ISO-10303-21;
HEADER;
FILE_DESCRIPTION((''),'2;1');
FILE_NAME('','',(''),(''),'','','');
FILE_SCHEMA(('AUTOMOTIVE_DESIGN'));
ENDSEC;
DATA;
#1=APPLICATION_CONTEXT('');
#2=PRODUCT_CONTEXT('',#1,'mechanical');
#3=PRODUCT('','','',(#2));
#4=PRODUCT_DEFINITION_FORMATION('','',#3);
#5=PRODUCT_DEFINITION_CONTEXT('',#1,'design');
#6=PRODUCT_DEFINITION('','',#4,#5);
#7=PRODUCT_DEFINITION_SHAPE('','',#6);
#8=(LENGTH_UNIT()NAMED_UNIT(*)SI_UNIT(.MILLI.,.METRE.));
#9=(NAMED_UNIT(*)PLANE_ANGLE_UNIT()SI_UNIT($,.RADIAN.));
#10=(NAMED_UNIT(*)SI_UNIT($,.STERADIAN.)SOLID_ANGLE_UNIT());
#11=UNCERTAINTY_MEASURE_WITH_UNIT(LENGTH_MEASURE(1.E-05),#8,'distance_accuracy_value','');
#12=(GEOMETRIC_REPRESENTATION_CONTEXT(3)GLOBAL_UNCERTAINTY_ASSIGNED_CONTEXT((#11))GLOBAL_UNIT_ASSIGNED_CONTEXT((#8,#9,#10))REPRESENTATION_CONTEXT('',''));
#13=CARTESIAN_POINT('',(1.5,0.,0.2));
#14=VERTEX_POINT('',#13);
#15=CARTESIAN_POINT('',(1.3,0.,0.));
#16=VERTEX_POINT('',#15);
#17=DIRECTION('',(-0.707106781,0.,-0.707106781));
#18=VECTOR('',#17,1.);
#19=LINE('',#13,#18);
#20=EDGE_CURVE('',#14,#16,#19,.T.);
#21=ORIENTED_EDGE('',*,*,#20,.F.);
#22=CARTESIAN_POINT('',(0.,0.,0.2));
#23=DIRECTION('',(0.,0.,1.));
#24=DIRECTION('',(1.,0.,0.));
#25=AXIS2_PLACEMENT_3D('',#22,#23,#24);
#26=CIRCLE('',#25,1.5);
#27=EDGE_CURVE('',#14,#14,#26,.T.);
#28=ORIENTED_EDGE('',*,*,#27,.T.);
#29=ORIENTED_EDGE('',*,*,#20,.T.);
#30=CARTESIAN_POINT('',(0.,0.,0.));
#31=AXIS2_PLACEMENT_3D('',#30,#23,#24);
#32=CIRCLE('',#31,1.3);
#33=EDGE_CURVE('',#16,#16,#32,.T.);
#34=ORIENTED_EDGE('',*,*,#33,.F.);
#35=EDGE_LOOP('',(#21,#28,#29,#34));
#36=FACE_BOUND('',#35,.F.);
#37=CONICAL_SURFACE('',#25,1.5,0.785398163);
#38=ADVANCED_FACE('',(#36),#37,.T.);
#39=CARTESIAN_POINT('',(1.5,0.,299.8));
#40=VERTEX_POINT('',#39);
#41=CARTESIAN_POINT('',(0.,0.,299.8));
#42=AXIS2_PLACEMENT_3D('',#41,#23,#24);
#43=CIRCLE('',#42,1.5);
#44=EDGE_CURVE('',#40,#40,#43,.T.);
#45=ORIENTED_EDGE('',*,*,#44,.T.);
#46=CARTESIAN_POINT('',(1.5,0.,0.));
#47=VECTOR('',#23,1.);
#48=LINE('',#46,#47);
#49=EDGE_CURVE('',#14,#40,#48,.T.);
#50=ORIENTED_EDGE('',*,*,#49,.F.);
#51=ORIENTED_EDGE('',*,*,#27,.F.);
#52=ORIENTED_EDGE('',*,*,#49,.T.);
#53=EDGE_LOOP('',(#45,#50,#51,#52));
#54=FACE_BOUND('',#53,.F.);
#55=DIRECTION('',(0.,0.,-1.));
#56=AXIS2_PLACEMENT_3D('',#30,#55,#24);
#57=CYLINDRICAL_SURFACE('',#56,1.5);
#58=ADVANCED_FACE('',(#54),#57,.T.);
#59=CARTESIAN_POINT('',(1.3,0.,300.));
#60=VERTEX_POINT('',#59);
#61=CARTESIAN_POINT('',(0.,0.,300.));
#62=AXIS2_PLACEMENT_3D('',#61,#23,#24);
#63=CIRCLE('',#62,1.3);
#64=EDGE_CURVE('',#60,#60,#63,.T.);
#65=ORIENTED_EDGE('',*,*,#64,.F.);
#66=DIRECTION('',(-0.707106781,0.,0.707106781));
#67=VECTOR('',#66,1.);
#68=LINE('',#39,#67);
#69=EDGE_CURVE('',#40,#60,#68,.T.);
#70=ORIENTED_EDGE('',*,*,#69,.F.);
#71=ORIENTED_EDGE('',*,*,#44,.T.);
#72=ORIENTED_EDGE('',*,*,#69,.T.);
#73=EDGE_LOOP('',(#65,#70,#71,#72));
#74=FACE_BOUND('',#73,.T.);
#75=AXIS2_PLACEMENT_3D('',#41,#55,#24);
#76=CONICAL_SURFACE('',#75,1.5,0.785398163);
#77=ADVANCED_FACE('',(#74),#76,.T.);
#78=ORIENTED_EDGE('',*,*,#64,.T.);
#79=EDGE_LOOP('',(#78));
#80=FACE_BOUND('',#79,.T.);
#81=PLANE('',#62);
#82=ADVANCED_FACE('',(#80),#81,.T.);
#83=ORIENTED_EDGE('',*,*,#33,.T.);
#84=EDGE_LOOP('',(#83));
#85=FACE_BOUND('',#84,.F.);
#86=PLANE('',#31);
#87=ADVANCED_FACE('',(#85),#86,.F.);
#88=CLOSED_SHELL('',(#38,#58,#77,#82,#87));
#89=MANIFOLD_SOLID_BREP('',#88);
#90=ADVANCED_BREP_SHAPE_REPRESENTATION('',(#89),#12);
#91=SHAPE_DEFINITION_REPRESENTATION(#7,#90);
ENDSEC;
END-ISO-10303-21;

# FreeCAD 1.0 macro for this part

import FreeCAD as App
import Part
import Sketcher
Q = App.Units.Quantity


def edges_at(feature, points):
    """Names of the edges that pass closest to the given points."""
    edges = feature.Shape.Edges
    near = lambda p: min(range(len(edges)), key=lambda i: edges[i].distToShape(Part.Vertex(*p))[0])
    return sorted({f"Edge{near(p) + 1}" for p in points})

doc = App.newDocument("Part")
body = doc.addObject("PartDesign::Body", "Body")

sketch1 = body.newObject("Sketcher::SketchObject", "Sketch")
sketch1.AttachmentSupport = (doc.getObject("XY_Plane"), [""])
sketch1.MapMode = "FlatFace"
sketch1.addGeometry(Part.Circle(App.Vector(0, 0, 0), App.Vector(0, 0, 1), 1.5), False)
sketch1.addConstraint(Sketcher.Constraint("Coincident", 0, 3, -1, 1))
sketch1.addConstraint(Sketcher.Constraint("Diameter", 0, Q("3 mm")))
pad1 = body.newObject("PartDesign::Pad", "Pad")
pad1.Profile = sketch1
pad1.Length = 300
doc.recompute()

chamfer = body.newObject("PartDesign::Chamfer", "Chamfer")
chamfer.Base = (pad1, edges_at(pad1, [(-1.5, 0, 300), (-1.5, 0, 0)]))
chamfer.Size = 0.2

doc.recompute()
